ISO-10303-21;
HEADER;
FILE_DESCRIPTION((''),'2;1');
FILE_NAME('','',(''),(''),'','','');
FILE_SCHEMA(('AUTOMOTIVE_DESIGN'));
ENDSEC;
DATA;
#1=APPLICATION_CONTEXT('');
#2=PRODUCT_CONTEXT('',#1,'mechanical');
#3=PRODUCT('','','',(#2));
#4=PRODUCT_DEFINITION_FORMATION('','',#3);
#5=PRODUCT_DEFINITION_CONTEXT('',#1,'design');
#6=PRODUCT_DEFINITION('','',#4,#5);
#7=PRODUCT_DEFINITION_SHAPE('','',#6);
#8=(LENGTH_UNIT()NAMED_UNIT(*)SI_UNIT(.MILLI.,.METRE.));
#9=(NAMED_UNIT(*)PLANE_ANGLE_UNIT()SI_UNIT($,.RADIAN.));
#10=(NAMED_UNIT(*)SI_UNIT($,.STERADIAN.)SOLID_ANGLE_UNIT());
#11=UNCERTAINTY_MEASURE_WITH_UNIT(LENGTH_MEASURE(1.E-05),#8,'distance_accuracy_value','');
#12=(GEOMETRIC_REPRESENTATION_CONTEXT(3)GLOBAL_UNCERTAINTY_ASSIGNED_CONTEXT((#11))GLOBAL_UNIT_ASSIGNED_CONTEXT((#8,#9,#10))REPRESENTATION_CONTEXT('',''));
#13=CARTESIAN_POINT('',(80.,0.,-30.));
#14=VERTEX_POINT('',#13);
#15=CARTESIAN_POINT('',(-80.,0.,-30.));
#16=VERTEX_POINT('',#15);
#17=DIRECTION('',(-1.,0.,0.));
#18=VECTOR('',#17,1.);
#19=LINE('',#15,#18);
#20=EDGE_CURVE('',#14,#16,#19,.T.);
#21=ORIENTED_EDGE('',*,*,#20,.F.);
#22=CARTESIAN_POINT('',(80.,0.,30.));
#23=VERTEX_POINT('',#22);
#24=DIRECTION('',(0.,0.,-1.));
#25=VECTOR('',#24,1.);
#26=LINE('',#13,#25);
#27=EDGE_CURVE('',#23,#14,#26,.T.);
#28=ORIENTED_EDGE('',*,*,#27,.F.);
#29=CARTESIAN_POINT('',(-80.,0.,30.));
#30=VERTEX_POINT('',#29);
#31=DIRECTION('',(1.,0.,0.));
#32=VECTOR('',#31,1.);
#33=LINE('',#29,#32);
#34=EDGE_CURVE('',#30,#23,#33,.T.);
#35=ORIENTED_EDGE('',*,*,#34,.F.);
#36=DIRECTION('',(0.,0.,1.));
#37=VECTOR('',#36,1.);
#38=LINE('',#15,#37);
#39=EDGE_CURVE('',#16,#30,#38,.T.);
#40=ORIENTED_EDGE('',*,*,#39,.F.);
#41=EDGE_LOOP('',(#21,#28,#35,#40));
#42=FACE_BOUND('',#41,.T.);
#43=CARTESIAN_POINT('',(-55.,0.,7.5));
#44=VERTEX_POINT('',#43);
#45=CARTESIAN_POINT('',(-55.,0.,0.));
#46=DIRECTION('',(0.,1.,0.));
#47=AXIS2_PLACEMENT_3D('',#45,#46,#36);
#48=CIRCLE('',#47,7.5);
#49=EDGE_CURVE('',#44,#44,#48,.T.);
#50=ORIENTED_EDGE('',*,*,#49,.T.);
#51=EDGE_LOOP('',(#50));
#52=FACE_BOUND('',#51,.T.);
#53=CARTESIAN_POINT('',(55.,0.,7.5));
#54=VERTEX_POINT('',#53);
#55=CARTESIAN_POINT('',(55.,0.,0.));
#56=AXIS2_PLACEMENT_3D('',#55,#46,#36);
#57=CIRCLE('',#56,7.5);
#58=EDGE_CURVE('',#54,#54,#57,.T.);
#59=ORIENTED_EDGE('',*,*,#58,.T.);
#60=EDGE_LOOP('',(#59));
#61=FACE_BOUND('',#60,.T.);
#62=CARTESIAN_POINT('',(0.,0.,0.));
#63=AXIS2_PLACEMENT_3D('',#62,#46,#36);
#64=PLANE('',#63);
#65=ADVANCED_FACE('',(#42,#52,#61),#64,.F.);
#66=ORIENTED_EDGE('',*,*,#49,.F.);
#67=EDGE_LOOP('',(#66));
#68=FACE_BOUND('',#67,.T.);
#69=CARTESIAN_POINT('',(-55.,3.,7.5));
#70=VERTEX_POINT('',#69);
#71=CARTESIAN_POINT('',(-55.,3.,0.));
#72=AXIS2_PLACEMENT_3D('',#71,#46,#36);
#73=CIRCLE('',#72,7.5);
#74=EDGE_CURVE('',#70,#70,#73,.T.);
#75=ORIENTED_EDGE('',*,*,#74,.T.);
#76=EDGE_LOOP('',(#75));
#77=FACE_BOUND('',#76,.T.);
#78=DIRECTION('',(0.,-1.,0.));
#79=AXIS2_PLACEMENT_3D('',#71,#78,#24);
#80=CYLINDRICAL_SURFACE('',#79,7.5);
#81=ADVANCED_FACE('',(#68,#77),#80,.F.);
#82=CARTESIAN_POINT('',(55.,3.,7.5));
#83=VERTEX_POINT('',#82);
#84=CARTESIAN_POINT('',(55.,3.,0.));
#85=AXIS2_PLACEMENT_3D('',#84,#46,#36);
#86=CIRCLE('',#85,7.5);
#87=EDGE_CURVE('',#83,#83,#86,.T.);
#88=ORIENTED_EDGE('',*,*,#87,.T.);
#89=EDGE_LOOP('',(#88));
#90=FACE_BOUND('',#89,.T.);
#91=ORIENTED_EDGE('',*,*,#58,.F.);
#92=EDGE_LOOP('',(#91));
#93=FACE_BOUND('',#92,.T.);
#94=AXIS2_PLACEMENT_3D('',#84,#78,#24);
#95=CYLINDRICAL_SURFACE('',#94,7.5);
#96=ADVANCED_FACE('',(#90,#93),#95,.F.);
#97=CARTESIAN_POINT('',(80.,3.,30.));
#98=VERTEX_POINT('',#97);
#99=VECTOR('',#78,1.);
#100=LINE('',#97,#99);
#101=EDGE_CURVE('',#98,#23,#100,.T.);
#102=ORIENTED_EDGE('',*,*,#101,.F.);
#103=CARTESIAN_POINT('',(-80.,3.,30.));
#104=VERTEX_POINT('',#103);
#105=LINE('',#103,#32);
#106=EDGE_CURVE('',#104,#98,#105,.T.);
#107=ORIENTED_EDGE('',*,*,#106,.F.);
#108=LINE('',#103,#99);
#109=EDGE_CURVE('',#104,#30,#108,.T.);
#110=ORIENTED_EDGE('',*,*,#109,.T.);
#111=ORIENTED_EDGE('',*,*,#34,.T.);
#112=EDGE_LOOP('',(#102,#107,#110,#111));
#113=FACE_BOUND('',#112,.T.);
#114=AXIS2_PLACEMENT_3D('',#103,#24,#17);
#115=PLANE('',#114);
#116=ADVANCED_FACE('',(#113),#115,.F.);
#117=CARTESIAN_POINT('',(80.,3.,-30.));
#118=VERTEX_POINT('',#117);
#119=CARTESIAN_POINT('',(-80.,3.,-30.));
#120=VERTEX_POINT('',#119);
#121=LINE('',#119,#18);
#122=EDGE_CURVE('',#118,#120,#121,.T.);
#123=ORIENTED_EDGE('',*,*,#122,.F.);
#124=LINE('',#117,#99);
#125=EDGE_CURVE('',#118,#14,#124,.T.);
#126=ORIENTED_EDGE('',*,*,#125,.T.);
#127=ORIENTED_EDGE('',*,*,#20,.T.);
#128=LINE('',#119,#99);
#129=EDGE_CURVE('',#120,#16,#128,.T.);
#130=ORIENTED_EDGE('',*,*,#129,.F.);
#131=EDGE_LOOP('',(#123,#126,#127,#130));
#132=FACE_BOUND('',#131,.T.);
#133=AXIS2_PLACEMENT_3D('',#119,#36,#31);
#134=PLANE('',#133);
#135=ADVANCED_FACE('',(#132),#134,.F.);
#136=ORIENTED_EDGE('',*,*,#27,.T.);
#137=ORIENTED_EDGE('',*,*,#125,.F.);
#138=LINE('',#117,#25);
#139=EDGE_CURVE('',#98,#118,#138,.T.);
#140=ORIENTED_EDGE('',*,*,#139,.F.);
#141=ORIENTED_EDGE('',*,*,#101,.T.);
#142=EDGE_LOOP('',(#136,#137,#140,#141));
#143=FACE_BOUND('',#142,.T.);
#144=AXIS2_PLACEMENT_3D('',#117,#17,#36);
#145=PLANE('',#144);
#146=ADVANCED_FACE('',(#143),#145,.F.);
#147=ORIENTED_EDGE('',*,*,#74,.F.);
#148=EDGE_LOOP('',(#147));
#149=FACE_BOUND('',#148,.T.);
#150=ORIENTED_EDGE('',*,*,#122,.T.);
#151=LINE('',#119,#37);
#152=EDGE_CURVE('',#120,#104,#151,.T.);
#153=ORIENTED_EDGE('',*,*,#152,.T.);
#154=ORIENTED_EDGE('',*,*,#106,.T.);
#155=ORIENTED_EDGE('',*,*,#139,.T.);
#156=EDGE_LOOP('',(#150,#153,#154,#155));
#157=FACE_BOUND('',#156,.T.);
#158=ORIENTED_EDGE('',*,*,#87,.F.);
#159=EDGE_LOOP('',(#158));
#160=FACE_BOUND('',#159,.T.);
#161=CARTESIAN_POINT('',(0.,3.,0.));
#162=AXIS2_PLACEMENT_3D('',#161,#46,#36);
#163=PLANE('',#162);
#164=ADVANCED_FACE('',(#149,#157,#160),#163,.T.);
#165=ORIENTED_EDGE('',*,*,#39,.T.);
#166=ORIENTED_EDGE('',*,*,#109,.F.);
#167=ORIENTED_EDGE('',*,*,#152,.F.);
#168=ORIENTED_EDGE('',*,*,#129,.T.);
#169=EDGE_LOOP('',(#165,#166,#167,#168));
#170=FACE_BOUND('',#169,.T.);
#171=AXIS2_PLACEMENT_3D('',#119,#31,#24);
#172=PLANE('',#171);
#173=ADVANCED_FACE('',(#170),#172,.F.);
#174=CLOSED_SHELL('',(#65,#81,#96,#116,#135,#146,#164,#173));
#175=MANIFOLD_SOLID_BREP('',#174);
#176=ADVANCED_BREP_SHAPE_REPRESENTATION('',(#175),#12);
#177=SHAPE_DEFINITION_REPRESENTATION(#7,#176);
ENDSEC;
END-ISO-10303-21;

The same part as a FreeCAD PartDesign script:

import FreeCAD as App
import Part
import Sketcher
Q = App.Units.Quantity

doc = App.newDocument("Part")
body = doc.addObject("PartDesign::Body", "Body")

sketch1 = doc.addObject("Sketcher::SketchObject", "Sketch")
body.addObject(sketch1)
sketch1.AttachmentSupport = (doc.XZ_Plane, [""])
sketch1.MapMode = "FlatFace"
sketch1.addGeometry(Part.LineSegment(App.Vector(-80, -30, 0), App.Vector(-80, 30, 0)), False)
sketch1.addGeometry(Part.LineSegment(App.Vector(-80, 30, 0), App.Vector(80, 30, 0)), False)
sketch1.addGeometry(Part.LineSegment(App.Vector(80, 30, 0), App.Vector(80, -30, 0)), False)
sketch1.addGeometry(Part.LineSegment(App.Vector(80, -30, 0), App.Vector(-80, -30, 0)), False)
sketch1.addGeometry(Part.Circle(App.Vector(-55, 0, 0), App.Vector(0, 0, 1), 7.5), False)
sketch1.addGeometry(Part.Circle(App.Vector(55, 0, 0), App.Vector(0, 0, 1), 7.5), False)
sketch1.addConstraint(Sketcher.Constraint("Coincident", 0, 2, 1, 1))
sketch1.addConstraint(Sketcher.Constraint("Coincident", 1, 2, 2, 1))
sketch1.addConstraint(Sketcher.Constraint("Coincident", 2, 2, 3, 1))
sketch1.addConstraint(Sketcher.Constraint("Coincident", 3, 2, 0, 1))
sketch1.addConstraint(Sketcher.Constraint("Vertical", 0))
sketch1.addConstraint(Sketcher.Constraint("Horizontal", 1))
sketch1.addConstraint(Sketcher.Constraint("Vertical", 2))
sketch1.addConstraint(Sketcher.Constraint("Horizontal", 3))
sketch1.addConstraint(Sketcher.Constraint("Equal", 4, 5))
sketch1.addConstraint(Sketcher.Constraint("Symmetric", 4, 3, 5, 3, -1, 1))
sketch1.addConstraint(Sketcher.Constraint("Symmetric", 0, 2, 2, 2, -1, 1))
sketch1.addConstraint(Sketcher.Constraint("PointOnObject", 4, 3, -1))
sketch1.addConstraint(Sketcher.Constraint("Diameter", 4, Q("15 mm")))
sketch1.addConstraint(Sketcher.Constraint("DistanceX", 1, 1, 1, 2, Q("160 mm")))
sketch1.addConstraint(Sketcher.Constraint("DistanceY", 0, 1, 0, 2, Q("60 mm")))
sketch1.addConstraint(Sketcher.Constraint("DistanceX", 4, 3, -1, 1, Q("55 mm")))
pad1 = doc.addObject("PartDesign::Pad", "Pad")
body.addObject(pad1)
pad1.Profile = sketch1
pad1.Length = 3
pad1.Reversed = True

doc.recompute()
